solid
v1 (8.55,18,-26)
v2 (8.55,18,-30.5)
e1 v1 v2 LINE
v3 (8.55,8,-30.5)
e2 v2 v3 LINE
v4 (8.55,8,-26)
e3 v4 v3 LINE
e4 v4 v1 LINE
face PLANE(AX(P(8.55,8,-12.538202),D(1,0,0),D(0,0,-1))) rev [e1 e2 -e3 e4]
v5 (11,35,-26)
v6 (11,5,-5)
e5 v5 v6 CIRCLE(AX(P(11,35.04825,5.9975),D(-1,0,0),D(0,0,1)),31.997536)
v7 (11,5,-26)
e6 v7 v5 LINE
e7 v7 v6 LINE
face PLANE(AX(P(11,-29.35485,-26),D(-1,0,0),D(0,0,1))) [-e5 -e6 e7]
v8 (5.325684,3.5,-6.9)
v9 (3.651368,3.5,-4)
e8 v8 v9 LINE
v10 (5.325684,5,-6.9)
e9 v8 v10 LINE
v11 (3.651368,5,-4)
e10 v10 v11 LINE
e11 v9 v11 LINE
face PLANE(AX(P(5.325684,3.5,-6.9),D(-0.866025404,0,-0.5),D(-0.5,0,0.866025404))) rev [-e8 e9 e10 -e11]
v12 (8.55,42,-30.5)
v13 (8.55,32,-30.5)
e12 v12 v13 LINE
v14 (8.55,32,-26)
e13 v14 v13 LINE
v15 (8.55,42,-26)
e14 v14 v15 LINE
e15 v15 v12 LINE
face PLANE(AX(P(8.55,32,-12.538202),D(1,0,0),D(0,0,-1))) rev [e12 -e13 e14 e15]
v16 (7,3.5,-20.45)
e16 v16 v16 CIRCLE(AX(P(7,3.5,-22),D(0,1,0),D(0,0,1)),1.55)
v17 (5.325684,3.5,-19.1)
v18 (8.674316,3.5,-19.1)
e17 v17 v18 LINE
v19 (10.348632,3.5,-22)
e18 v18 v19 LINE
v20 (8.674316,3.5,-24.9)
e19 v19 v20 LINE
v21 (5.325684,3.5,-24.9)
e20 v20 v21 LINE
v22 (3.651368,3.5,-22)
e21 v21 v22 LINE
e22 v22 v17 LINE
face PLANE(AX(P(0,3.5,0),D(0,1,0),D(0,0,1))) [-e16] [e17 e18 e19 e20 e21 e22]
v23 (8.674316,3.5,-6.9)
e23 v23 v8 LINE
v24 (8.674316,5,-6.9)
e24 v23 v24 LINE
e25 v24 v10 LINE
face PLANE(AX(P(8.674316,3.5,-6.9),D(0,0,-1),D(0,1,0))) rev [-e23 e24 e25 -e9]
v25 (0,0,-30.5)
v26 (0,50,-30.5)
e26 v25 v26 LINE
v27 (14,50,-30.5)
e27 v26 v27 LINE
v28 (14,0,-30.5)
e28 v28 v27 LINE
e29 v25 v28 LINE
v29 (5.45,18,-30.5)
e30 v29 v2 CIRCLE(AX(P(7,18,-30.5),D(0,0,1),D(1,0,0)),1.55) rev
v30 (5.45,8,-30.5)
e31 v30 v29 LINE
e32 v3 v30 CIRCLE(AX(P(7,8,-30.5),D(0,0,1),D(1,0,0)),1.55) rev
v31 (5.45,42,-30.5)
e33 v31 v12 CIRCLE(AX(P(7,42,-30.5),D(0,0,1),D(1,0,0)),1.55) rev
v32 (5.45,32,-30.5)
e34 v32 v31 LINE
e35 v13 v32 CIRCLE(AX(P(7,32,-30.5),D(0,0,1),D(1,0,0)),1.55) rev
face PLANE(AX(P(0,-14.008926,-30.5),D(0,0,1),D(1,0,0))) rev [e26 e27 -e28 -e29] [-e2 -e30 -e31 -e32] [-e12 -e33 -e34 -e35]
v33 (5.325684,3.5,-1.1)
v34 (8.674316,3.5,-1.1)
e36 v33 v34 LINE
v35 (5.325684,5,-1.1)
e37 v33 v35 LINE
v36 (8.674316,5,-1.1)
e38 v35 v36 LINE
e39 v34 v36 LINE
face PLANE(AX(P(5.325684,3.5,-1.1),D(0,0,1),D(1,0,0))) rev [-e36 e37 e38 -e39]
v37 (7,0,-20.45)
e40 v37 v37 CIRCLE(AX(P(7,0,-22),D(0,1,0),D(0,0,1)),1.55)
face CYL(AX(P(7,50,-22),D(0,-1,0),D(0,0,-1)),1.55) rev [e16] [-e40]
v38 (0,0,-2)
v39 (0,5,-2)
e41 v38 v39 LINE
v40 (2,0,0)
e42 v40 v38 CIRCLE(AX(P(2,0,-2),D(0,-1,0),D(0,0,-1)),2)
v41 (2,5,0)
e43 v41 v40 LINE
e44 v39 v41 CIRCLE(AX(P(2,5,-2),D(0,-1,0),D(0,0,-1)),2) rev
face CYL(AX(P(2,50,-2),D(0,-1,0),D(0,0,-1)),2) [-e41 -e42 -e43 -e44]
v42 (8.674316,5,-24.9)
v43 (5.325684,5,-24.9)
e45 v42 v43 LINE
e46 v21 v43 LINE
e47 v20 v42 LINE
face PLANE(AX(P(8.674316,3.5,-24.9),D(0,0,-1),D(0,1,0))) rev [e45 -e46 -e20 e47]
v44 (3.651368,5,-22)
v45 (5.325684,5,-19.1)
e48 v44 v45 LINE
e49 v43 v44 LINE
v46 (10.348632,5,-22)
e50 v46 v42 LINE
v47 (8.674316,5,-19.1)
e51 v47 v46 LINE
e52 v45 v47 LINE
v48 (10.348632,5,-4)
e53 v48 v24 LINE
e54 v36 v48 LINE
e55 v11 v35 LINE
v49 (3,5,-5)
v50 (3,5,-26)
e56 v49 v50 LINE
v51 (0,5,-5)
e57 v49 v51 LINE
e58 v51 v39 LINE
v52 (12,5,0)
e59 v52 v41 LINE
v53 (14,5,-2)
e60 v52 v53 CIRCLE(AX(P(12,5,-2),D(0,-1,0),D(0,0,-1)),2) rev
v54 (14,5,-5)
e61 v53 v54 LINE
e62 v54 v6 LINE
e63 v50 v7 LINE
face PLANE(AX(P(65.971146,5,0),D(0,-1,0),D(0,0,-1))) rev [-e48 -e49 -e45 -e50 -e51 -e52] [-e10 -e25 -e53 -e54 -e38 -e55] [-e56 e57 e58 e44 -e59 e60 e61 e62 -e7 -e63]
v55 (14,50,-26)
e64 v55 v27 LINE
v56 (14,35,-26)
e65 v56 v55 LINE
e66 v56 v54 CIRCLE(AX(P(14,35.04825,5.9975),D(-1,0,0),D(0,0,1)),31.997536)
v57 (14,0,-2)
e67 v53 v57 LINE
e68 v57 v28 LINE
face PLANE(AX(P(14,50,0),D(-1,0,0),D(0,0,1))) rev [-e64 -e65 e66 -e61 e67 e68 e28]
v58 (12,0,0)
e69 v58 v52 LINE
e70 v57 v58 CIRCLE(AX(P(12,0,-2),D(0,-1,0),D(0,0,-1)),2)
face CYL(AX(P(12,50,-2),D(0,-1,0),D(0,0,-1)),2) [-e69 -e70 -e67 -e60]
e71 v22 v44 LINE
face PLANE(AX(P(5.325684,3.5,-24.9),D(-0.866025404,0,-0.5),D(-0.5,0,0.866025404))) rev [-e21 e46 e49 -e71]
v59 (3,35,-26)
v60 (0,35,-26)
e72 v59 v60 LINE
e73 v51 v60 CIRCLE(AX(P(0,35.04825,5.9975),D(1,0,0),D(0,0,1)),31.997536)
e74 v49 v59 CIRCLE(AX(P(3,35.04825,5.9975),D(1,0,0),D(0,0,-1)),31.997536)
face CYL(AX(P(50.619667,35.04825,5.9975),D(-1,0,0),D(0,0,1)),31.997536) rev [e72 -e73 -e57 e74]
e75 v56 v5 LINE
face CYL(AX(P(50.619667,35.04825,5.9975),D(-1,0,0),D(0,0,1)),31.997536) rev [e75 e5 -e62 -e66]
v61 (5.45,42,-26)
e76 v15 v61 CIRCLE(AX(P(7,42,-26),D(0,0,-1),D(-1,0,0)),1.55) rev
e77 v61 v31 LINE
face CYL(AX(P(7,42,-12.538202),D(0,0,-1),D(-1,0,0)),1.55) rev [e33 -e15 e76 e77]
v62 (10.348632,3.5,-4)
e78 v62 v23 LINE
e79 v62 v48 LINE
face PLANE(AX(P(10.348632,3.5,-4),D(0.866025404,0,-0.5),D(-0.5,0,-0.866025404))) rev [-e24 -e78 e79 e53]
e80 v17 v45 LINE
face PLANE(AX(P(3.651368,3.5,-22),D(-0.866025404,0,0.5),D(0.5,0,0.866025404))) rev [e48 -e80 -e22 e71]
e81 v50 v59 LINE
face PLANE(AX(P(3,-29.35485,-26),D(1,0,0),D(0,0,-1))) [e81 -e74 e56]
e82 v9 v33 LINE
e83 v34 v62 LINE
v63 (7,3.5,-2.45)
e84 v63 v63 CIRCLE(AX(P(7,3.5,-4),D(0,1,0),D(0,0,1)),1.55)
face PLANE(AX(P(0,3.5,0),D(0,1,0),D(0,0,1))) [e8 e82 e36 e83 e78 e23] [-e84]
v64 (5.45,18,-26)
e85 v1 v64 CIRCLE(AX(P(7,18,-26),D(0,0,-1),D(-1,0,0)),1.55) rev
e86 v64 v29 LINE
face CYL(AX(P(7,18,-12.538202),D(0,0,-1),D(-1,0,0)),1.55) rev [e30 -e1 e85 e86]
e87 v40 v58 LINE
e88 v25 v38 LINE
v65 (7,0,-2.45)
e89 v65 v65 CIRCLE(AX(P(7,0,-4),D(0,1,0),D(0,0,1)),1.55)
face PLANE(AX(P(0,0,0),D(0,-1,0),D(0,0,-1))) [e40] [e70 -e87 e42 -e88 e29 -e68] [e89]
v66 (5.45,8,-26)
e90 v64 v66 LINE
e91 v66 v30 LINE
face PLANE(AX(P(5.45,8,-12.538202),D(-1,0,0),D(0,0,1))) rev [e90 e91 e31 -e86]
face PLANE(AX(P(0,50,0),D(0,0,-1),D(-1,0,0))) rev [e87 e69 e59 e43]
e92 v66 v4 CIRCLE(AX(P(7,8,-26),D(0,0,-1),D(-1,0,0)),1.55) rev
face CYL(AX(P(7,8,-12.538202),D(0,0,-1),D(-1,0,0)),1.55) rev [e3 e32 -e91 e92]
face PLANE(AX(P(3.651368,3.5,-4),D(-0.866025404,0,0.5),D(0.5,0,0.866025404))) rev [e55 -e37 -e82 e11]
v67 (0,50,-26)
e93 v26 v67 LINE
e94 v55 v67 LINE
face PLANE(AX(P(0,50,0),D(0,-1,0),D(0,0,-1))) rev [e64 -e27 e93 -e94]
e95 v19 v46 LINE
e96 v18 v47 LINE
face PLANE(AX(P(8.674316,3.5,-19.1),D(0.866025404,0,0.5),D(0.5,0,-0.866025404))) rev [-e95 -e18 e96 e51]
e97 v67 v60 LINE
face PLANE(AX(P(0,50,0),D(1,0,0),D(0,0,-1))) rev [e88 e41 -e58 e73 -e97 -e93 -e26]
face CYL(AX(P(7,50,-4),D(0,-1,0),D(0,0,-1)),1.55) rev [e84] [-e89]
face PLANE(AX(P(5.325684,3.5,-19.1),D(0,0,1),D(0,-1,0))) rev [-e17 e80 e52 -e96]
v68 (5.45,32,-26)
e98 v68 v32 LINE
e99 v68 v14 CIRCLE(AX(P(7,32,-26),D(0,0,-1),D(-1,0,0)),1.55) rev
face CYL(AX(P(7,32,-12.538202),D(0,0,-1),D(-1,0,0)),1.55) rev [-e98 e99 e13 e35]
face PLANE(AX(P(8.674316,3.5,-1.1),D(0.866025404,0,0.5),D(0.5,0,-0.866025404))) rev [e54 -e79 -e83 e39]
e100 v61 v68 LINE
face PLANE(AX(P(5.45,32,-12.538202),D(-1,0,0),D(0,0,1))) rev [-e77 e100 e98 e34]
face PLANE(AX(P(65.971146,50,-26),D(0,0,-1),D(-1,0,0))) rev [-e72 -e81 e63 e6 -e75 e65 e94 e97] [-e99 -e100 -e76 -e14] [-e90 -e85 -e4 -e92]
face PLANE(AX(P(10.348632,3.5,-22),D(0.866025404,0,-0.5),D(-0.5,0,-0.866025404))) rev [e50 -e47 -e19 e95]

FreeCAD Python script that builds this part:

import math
import FreeCAD as App
import Part
import Sketcher
Q = App.Units.Quantity


def edges_at(feature, points):
    """Names of the edges that pass closest to the given points."""
    edges = feature.Shape.Edges
    near = lambda p: min(range(len(edges)), key=lambda i: edges[i].distToShape(Part.Vertex(*p))[0])
    return sorted({f"Edge{near(p) + 1}" for p in points})


def add_polygon(sketch, points):
    """Adds a closed chain of lines whose ends are joined by coincident constraints."""
    first, n = sketch.GeometryCount, len(points)
    for a, b in zip(points, points[1:] + points[:1]):
        sketch.addGeometry(Part.LineSegment(App.Vector(*a, 0), App.Vector(*b, 0)), False)
    for i in range(n):
        sketch.addConstraint(Sketcher.Constraint("Coincident", first + i, 2, first + (i + 1) % n, 1))

doc = App.newDocument("Part")
params = doc.addObject("Spreadsheet::Sheet", "Params")
for row, (alias, value) in enumerate([
    ("sketch1_diameter", "3.1 mm"),
    ("sketch1_width", "14 mm"),
    ("sketch1_height", "31 mm"),
    ("pad1_length", "50 mm"),
    ("sketch2_width", "45 mm"),
    ("sketch2_height", "26 mm"),
    ("pocket1_length", "14 mm"),
    ("sketch3_height", "10 mm"),
    ("sketch3_radius", "1.55 mm"),
    ("pocket2_length", "5 mm"),
    ("pocket3_length", "1.5 mm"),
    ("sketch5_width", "30 mm"),
    ("sketch5_height", "21 mm"),
    ("pad2_length", "14 mm"),
    ("sketch6_width", "14 mm"),
    ("sketch6_width2", "3 mm"),
    ("sketch6_height", "31 mm"),
    ("sketch6_height2", "26 mm"),
    ("pocket4_length", "45 mm"),
    ("fillet_radius", "2 mm"),
    ("sketch7_width", "14 mm"),
    ("sketch7_height", "0.5 mm"),
    ("pocket5_length", "50 mm"),
], start=1):
    params.set(f"A{row}", alias)
    params.set(f"B{row}", "=" + value)
    params.setAlias(f"B{row}", alias)

body = doc.addObject("PartDesign::Body", "Body")

# Sketch on XZ plane
sketch1 = body.newObject("Sketcher::SketchObject", "Sketch")
sketch1.AttachmentSupport = (doc.getObject("XZ_Plane"), [""])
sketch1.MapMode = "FlatFace"
add_polygon(sketch1, [(0, -31), (0, 0), (14, 0), (14, -31)])  # lines 0-3
sketch1.addGeometry(Part.Circle(App.Vector(7, -4, 0), App.Vector(0, 0, 1), 1.6), False)  # 4
sketch1.addGeometry(Part.Circle(App.Vector(7, -22, 0), App.Vector(0, 0, 1), 1.6), False)  # 5
sketch1.addConstraint(Sketcher.Constraint("Vertical", 0))
sketch1.addConstraint(Sketcher.Constraint("Horizontal", 1))
sketch1.addConstraint(Sketcher.Constraint("Vertical", 2))
sketch1.addConstraint(Sketcher.Constraint("Horizontal", 3))
sketch1.addConstraint(Sketcher.Constraint("Coincident", 0, 2, -1, 1))
sketch1.addConstraint(Sketcher.Constraint("Equal", 4, 5))
sketch1.addConstraint(Sketcher.Constraint("Vertical", 4, 3, 5, 3))
sketch1.addConstraint(Sketcher.Constraint("Diameter", 4, 3.1))
sketch1.addConstraint(Sketcher.Constraint("DistanceX", 1, 1, 1, 2, 14.0))
sketch1.addConstraint(Sketcher.Constraint("DistanceY", 0, 1, 0, 2, 31.0))
sketch1.addConstraint(Sketcher.Constraint("DistanceX", -1, 1, 4, 3, 7.0))
sketch1.addConstraint(Sketcher.Constraint("DistanceY", 4, 3, -1, 1, 4.0))
sketch1.addConstraint(Sketcher.Constraint("DistanceY", 5, 3, -1, 1, 22.0))
sketch1.setExpression("Constraints[11]", "Params.sketch1_diameter")
sketch1.setExpression("Constraints[12]", "Params.sketch1_width")
sketch1.setExpression("Constraints[13]", "Params.sketch1_height")
pad1 = body.newObject("PartDesign::Pad", "Pad")
pad1.Profile = sketch1
pad1.setExpression("Length", "Params.pad1_length")
pad1.Reversed = True

# Sketch on YZ plane
sketch2 = body.newObject("Sketcher::SketchObject", "Sketch001")
sketch2.AttachmentSupport = (doc.getObject("YZ_Plane"), [""])
sketch2.MapMode = "FlatFace"
add_polygon(sketch2, [(50, -26), (5, -26), (5, 0), (50, 0)])  # lines 0-3
sketch2.addConstraint(Sketcher.Constraint("Horizontal", 0))
sketch2.addConstraint(Sketcher.Constraint("Vertical", 1))
sketch2.addConstraint(Sketcher.Constraint("Horizontal", 2))
sketch2.addConstraint(Sketcher.Constraint("Vertical", 3))
sketch2.addConstraint(Sketcher.Constraint("PointOnObject", 1, 2, -1))
sketch2.addConstraint(Sketcher.Constraint("DistanceX", 0, 2, 0, 1, 45.0))
sketch2.addConstraint(Sketcher.Constraint("DistanceY", 1, 1, 1, 2, 26.0))
sketch2.addConstraint(Sketcher.Constraint("DistanceX", -1, 1, 0, 2, 5.0))
sketch2.setExpression("Constraints[9]", "Params.sketch2_width")
sketch2.setExpression("Constraints[10]", "Params.sketch2_height")
pocket1 = body.newObject("PartDesign::Pocket", "Pocket")
pocket1.Profile = sketch2
pocket1.setExpression("Length", "Params.pocket1_length")
pocket1.Reversed = True

# Sketch on XY plane
sketch3 = body.newObject("Sketcher::SketchObject", "Sketch002")
sketch3.AttachmentSupport = (doc.getObject("XY_Plane"), [""])
sketch3.MapMode = "FlatFace"
sketch3.AttachmentOffset = App.Placement(App.Vector(0, 0, -31), App.Rotation())
sketch3.addGeometry(Part.LineSegment(App.Vector(8.6, 18, 0), App.Vector(8.6, 8, 0)), False)
sketch3.addGeometry(Part.ArcOfCircle(Part.Circle(App.Vector(7, 8, 0), App.Vector(0, 0, 1), 1.6), math.radians(180), math.radians(360)), False)
sketch3.addGeometry(Part.LineSegment(App.Vector(5.5, 8, 0), App.Vector(5.5, 18, 0)), False)
sketch3.addGeometry(Part.ArcOfCircle(Part.Circle(App.Vector(7, 18, 0), App.Vector(0, 0, 1), 1.6), math.radians(0), math.radians(180)), False)
sketch3.addGeometry(Part.LineSegment(App.Vector(8.6, 42, 0), App.Vector(8.6, 32, 0)), False)
sketch3.addGeometry(Part.ArcOfCircle(Part.Circle(App.Vector(7, 32, 0), App.Vector(0, 0, 1), 1.6), math.radians(180), math.radians(360)), False)
sketch3.addGeometry(Part.LineSegment(App.Vector(5.5, 32, 0), App.Vector(5.5, 42, 0)), False)
sketch3.addGeometry(Part.ArcOfCircle(Part.Circle(App.Vector(7, 42, 0), App.Vector(0, 0, 1), 1.6), math.radians(0), math.radians(180)), False)
sketch3.addConstraint(Sketcher.Constraint("Tangent", 0, 2, 1, 2))
sketch3.addConstraint(Sketcher.Constraint("Tangent", 1, 1, 2, 1))
sketch3.addConstraint(Sketcher.Constraint("Tangent", 2, 2, 3, 2))
sketch3.addConstraint(Sketcher.Constraint("Tangent", 3, 1, 0, 1))
sketch3.addConstraint(Sketcher.Constraint("Tangent", 4, 2, 5, 2))
sketch3.addConstraint(Sketcher.Constraint("Tangent", 5, 1, 6, 1))
sketch3.addConstraint(Sketcher.Constraint("Tangent", 6, 2, 7, 2))
sketch3.addConstraint(Sketcher.Constraint("Tangent", 7, 1, 4, 1))
sketch3.addConstraint(Sketcher.Constraint("Vertical", 0))
sketch3.addConstraint(Sketcher.Constraint("Vertical", 2))
sketch3.addConstraint(Sketcher.Constraint("Vertical", 4))
sketch3.addConstraint(Sketcher.Constraint("Vertical", 6))
sketch3.addConstraint(Sketcher.Constraint("Equal", 3, 5))
sketch3.addConstraint(Sketcher.Constraint("Vertical", 3, 3, 5, 3))
sketch3.addConstraint(Sketcher.Constraint("Equal", 2, 4))
sketch3.addConstraint(Sketcher.Constraint("DistanceY", 0, 2, 0, 1, 10.0))
sketch3.addConstraint(Sketcher.Constraint("Radius", 1, 1.55))
sketch3.addConstraint(Sketcher.Constraint("DistanceX", -1, 1, 1, 3, 7.0))
sketch3.addConstraint(Sketcher.Constraint("DistanceY", -1, 1, 1, 3, 8.0))
sketch3.addConstraint(Sketcher.Constraint("DistanceY", -1, 1, 5, 3, 32.0))
sketch3.setExpression("Constraints[15]", "Params.sketch3_height")
sketch3.setExpression("Constraints[16]", "Params.sketch3_radius")
pocket2 = body.newObject("PartDesign::Pocket", "Pocket001")
pocket2.Profile = sketch3
pocket2.setExpression("Length", "Params.pocket2_length")
pocket2.Reversed = True

# Sketch on XZ plane
sketch4 = body.newObject("Sketcher::SketchObject", "Sketch003")
sketch4.AttachmentSupport = (doc.getObject("XZ_Plane"), [""])
sketch4.MapMode = "FlatFace"
sketch4.AttachmentOffset = App.Placement(App.Vector(0, 0, -5), App.Rotation())
add_polygon(sketch4, [(10.3, -4), (8.7, -6.9), (5.3, -6.9), (3.7, -4), (5.3, -1.1), (8.7, -1.1)])  # lines 0-5
add_polygon(sketch4, [(8.7, -19.1), (10.3, -22), (8.7, -24.9), (5.3, -24.9), (3.7, -22), (5.3, -19.1)])  # lines 6-11
sketch4.addConstraint(Sketcher.Constraint("Horizontal", 1))
sketch4.addConstraint(Sketcher.Constraint("Horizontal", 4))
sketch4.addConstraint(Sketcher.Constraint("Horizontal", 8))
sketch4.addConstraint(Sketcher.Constraint("Horizontal", 11))
sketch4.addConstraint(Sketcher.Constraint("Parallel", 0, 3))
sketch4.addConstraint(Sketcher.Constraint("Parallel", 2, 5))
sketch4.addConstraint(Sketcher.Constraint("Parallel", 5, 6))
sketch4.addConstraint(Sketcher.Constraint("Parallel", 3, 7))
sketch4.addConstraint(Sketcher.Constraint("Parallel", 6, 9))
sketch4.addConstraint(Sketcher.Constraint("Parallel", 7, 10))
sketch4.addConstraint(Sketcher.Constraint("Horizontal", 2, 2, 5, 2))
sketch4.addConstraint(Sketcher.Constraint("Horizontal", 6, 2, 9, 2))
sketch4.addConstraint(Sketcher.Constraint("Vertical", 1, 2, 3, 2))
sketch4.addConstraint(Sketcher.Constraint("Vertical", 0, 2, 4, 2))
sketch4.addConstraint(Sketcher.Constraint("Vertical", 5, 2, 6, 2))
sketch4.addConstraint(Sketcher.Constraint("Vertical", 4, 2, 7, 2))
sketch4.addConstraint(Sketcher.Constraint("Vertical", 3, 2, 8, 2))
sketch4.addConstraint(Sketcher.Constraint("Vertical", 8, 2, 10, 2))
sketch4.addConstraint(Sketcher.Constraint("Angle", 0, Q("-120 deg")))
sketch4.addConstraint(Sketcher.Constraint("DistanceY", 2, 2, -1, 1, 4.0))
sketch4.addConstraint(Sketcher.Constraint("DistanceY", 6, 2, -1, 1, 22.0))
sketch4.addConstraint(Sketcher.Constraint("DistanceY", 0, 2, -1, 1, 6.9))
sketch4.addConstraint(Sketcher.Constraint("DistanceX", 1, 2, 1, 1, 3.348632))
sketch4.addConstraint(Sketcher.Constraint("DistanceX", -1, 1, 2, 2, 3.651368))
pocket3 = body.newObject("PartDesign::Pocket", "Pocket002")
pocket3.Profile = sketch4
pocket3.setExpression("Length", "Params.pocket3_length")
pocket3.Reversed = True

# Sketch on YZ plane
sketch5 = body.newObject("Sketcher::SketchObject", "Sketch004")
sketch5.AttachmentSupport = (doc.getObject("YZ_Plane"), [""])
sketch5.MapMode = "FlatFace"
sketch5.addGeometry(Part.LineSegment(App.Vector(35, -26, 0), App.Vector(5, -26, 0)), False)
sketch5.addGeometry(Part.LineSegment(App.Vector(5, -26, 0), App.Vector(5, -5, 0)), False)
sketch5.addGeometry(Part.ArcOfCircle(Part.Circle(App.Vector(35, 6, 0), App.Vector(0, 0, 1), 32), math.radians(-160), math.radians(-90)), False)
sketch5.addConstraint(Sketcher.Constraint("Coincident", 0, 2, 1, 1))
sketch5.addConstraint(Sketcher.Constraint("Coincident", 1, 2, 2, 1))
sketch5.addConstraint(Sketcher.Constraint("Coincident", 2, 2, 0, 1))
sketch5.addConstraint(Sketcher.Constraint("Horizontal", 0))
sketch5.addConstraint(Sketcher.Constraint("Vertical", 1))
sketch5.addConstraint(Sketcher.Constraint("DistanceX", 0, 2, 0, 1, 30.0))
sketch5.addConstraint(Sketcher.Constraint("DistanceY", 1, 1, 1, 2, 21.0))
sketch5.addConstraint(Sketcher.Constraint("DistanceX", -1, 1, 0, 2, 5.0))
sketch5.addConstraint(Sketcher.Constraint("DistanceY", 0, 2, -1, 1, 26.0))
sketch5.addConstraint(Sketcher.Constraint("Radius", 2, 31.997536))
sketch5.setExpression("Constraints[5]", "Params.sketch5_width")
sketch5.setExpression("Constraints[6]", "Params.sketch5_height")
pad2 = body.newObject("PartDesign::Pad", "Pad001")
pad2.Profile = sketch5
pad2.setExpression("Length", "Params.pad2_length")

# Sketch on XZ plane
sketch6 = body.newObject("Sketcher::SketchObject", "Sketch005")
sketch6.AttachmentSupport = (doc.getObject("XZ_Plane"), [""])
sketch6.MapMode = "FlatFace"
sketch6.AttachmentOffset = App.Placement(App.Vector(0, 0, -50), App.Rotation())
add_polygon(sketch6, [(-7, -38), (-7, 7), (21, 7), (21, -38)])  # lines 0-3
add_polygon(sketch6, [(0, 0), (0, -31), (14, -31), (14, 0), (11, 0), (11, -26), (3, -26), (3, 0)])  # lines 4-11
sketch6.addConstraint(Sketcher.Constraint("Vertical", 0))
sketch6.addConstraint(Sketcher.Constraint("Horizontal", 1))
sketch6.addConstraint(Sketcher.Constraint("Vertical", 2))
sketch6.addConstraint(Sketcher.Constraint("Horizontal", 3))
sketch6.addConstraint(Sketcher.Constraint("Vertical", 4))
sketch6.addConstraint(Sketcher.Constraint("Horizontal", 5))
sketch6.addConstraint(Sketcher.Constraint("Vertical", 6))
sketch6.addConstraint(Sketcher.Constraint("Horizontal", 7))
sketch6.addConstraint(Sketcher.Constraint("Vertical", 8))
sketch6.addConstraint(Sketcher.Constraint("Horizontal", 9))
sketch6.addConstraint(Sketcher.Constraint("Vertical", 10))
sketch6.addConstraint(Sketcher.Constraint("Horizontal", 11))
sketch6.addConstraint(Sketcher.Constraint("Coincident", 11, 2, -1, 1))
sketch6.addConstraint(Sketcher.Constraint("PointOnObject", 6, 2, -1))
sketch6.addConstraint(Sketcher.Constraint("Equal", 7, 11))
sketch6.addConstraint(Sketcher.Constraint("DistanceX", 5, 1, 5, 2, 14.0))
sketch6.addConstraint(Sketcher.Constraint("DistanceX", 7, 2, 7, 1, 3.0))
sketch6.addConstraint(Sketcher.Constraint("DistanceY", 4, 2, 4, 1, 31.0))
sketch6.addConstraint(Sketcher.Constraint("DistanceY", 8, 2, 8, 1, 26.0))
sketch6.addConstraint(Sketcher.Constraint("DistanceX", 1, 1, 1, 2, 28.094))
sketch6.addConstraint(Sketcher.Constraint("DistanceY", 0, 1, 0, 2, 45.094))
sketch6.addConstraint(Sketcher.Constraint("DistanceX", 0, 2, -1, 1, 7.047))
sketch6.addConstraint(Sketcher.Constraint("DistanceY", -1, 1, 0, 2, 7.047))
sketch6.setExpression("Constraints[27]", "Params.sketch6_width")
sketch6.setExpression("Constraints[28]", "Params.sketch6_width2")
sketch6.setExpression("Constraints[29]", "Params.sketch6_height")
sketch6.setExpression("Constraints[30]", "Params.sketch6_height2")
pocket4 = body.newObject("PartDesign::Pocket", "Pocket003")
pocket4.Profile = sketch6
pocket4.setExpression("Length", "Params.pocket4_length")
pocket4.Reversed = True
doc.recompute()

fillet = body.newObject("PartDesign::Fillet", "Fillet")
fillet.Base = (pocket4, edges_at(pocket4, [(14, 2.5, 0), (0, 2.5, 0)]))
fillet.setExpression("Radius", "Params.fillet_radius")

# Sketch on XZ plane
sketch7 = body.newObject("Sketcher::SketchObject", "Sketch006")
sketch7.AttachmentSupport = (doc.getObject("XZ_Plane"), [""])
sketch7.MapMode = "FlatFace"
sketch7.AttachmentOffset = App.Placement(App.Vector(0, 0, -50), App.Rotation())
add_polygon(sketch7, [(0, -31), (0, -30.5), (14, -30.5), (14, -31)])  # lines 0-3
sketch7.addConstraint(Sketcher.Constraint("Vertical", 0))
sketch7.addConstraint(Sketcher.Constraint("Horizontal", 1))
sketch7.addConstraint(Sketcher.Constraint("Vertical", 2))
sketch7.addConstraint(Sketcher.Constraint("Horizontal", 3))
sketch7.addConstraint(Sketcher.Constraint("PointOnObject", 0, 2, -2))
sketch7.addConstraint(Sketcher.Constraint("DistanceX", 1, 1, 1, 2, 14.0))
sketch7.addConstraint(Sketcher.Constraint("DistanceY", 0, 1, 0, 2, 0.5))
sketch7.addConstraint(Sketcher.Constraint("DistanceY", 2, 2, -1, 1, 31.0))
sketch7.setExpression("Constraints[9]", "Params.sketch7_width")
sketch7.setExpression("Constraints[10]", "Params.sketch7_height")
pocket5 = body.newObject("PartDesign::Pocket", "Pocket004")
pocket5.Profile = sketch7
pocket5.setExpression("Length", "Params.pocket5_length")
pocket5.Reversed = True

doc.recompute()
